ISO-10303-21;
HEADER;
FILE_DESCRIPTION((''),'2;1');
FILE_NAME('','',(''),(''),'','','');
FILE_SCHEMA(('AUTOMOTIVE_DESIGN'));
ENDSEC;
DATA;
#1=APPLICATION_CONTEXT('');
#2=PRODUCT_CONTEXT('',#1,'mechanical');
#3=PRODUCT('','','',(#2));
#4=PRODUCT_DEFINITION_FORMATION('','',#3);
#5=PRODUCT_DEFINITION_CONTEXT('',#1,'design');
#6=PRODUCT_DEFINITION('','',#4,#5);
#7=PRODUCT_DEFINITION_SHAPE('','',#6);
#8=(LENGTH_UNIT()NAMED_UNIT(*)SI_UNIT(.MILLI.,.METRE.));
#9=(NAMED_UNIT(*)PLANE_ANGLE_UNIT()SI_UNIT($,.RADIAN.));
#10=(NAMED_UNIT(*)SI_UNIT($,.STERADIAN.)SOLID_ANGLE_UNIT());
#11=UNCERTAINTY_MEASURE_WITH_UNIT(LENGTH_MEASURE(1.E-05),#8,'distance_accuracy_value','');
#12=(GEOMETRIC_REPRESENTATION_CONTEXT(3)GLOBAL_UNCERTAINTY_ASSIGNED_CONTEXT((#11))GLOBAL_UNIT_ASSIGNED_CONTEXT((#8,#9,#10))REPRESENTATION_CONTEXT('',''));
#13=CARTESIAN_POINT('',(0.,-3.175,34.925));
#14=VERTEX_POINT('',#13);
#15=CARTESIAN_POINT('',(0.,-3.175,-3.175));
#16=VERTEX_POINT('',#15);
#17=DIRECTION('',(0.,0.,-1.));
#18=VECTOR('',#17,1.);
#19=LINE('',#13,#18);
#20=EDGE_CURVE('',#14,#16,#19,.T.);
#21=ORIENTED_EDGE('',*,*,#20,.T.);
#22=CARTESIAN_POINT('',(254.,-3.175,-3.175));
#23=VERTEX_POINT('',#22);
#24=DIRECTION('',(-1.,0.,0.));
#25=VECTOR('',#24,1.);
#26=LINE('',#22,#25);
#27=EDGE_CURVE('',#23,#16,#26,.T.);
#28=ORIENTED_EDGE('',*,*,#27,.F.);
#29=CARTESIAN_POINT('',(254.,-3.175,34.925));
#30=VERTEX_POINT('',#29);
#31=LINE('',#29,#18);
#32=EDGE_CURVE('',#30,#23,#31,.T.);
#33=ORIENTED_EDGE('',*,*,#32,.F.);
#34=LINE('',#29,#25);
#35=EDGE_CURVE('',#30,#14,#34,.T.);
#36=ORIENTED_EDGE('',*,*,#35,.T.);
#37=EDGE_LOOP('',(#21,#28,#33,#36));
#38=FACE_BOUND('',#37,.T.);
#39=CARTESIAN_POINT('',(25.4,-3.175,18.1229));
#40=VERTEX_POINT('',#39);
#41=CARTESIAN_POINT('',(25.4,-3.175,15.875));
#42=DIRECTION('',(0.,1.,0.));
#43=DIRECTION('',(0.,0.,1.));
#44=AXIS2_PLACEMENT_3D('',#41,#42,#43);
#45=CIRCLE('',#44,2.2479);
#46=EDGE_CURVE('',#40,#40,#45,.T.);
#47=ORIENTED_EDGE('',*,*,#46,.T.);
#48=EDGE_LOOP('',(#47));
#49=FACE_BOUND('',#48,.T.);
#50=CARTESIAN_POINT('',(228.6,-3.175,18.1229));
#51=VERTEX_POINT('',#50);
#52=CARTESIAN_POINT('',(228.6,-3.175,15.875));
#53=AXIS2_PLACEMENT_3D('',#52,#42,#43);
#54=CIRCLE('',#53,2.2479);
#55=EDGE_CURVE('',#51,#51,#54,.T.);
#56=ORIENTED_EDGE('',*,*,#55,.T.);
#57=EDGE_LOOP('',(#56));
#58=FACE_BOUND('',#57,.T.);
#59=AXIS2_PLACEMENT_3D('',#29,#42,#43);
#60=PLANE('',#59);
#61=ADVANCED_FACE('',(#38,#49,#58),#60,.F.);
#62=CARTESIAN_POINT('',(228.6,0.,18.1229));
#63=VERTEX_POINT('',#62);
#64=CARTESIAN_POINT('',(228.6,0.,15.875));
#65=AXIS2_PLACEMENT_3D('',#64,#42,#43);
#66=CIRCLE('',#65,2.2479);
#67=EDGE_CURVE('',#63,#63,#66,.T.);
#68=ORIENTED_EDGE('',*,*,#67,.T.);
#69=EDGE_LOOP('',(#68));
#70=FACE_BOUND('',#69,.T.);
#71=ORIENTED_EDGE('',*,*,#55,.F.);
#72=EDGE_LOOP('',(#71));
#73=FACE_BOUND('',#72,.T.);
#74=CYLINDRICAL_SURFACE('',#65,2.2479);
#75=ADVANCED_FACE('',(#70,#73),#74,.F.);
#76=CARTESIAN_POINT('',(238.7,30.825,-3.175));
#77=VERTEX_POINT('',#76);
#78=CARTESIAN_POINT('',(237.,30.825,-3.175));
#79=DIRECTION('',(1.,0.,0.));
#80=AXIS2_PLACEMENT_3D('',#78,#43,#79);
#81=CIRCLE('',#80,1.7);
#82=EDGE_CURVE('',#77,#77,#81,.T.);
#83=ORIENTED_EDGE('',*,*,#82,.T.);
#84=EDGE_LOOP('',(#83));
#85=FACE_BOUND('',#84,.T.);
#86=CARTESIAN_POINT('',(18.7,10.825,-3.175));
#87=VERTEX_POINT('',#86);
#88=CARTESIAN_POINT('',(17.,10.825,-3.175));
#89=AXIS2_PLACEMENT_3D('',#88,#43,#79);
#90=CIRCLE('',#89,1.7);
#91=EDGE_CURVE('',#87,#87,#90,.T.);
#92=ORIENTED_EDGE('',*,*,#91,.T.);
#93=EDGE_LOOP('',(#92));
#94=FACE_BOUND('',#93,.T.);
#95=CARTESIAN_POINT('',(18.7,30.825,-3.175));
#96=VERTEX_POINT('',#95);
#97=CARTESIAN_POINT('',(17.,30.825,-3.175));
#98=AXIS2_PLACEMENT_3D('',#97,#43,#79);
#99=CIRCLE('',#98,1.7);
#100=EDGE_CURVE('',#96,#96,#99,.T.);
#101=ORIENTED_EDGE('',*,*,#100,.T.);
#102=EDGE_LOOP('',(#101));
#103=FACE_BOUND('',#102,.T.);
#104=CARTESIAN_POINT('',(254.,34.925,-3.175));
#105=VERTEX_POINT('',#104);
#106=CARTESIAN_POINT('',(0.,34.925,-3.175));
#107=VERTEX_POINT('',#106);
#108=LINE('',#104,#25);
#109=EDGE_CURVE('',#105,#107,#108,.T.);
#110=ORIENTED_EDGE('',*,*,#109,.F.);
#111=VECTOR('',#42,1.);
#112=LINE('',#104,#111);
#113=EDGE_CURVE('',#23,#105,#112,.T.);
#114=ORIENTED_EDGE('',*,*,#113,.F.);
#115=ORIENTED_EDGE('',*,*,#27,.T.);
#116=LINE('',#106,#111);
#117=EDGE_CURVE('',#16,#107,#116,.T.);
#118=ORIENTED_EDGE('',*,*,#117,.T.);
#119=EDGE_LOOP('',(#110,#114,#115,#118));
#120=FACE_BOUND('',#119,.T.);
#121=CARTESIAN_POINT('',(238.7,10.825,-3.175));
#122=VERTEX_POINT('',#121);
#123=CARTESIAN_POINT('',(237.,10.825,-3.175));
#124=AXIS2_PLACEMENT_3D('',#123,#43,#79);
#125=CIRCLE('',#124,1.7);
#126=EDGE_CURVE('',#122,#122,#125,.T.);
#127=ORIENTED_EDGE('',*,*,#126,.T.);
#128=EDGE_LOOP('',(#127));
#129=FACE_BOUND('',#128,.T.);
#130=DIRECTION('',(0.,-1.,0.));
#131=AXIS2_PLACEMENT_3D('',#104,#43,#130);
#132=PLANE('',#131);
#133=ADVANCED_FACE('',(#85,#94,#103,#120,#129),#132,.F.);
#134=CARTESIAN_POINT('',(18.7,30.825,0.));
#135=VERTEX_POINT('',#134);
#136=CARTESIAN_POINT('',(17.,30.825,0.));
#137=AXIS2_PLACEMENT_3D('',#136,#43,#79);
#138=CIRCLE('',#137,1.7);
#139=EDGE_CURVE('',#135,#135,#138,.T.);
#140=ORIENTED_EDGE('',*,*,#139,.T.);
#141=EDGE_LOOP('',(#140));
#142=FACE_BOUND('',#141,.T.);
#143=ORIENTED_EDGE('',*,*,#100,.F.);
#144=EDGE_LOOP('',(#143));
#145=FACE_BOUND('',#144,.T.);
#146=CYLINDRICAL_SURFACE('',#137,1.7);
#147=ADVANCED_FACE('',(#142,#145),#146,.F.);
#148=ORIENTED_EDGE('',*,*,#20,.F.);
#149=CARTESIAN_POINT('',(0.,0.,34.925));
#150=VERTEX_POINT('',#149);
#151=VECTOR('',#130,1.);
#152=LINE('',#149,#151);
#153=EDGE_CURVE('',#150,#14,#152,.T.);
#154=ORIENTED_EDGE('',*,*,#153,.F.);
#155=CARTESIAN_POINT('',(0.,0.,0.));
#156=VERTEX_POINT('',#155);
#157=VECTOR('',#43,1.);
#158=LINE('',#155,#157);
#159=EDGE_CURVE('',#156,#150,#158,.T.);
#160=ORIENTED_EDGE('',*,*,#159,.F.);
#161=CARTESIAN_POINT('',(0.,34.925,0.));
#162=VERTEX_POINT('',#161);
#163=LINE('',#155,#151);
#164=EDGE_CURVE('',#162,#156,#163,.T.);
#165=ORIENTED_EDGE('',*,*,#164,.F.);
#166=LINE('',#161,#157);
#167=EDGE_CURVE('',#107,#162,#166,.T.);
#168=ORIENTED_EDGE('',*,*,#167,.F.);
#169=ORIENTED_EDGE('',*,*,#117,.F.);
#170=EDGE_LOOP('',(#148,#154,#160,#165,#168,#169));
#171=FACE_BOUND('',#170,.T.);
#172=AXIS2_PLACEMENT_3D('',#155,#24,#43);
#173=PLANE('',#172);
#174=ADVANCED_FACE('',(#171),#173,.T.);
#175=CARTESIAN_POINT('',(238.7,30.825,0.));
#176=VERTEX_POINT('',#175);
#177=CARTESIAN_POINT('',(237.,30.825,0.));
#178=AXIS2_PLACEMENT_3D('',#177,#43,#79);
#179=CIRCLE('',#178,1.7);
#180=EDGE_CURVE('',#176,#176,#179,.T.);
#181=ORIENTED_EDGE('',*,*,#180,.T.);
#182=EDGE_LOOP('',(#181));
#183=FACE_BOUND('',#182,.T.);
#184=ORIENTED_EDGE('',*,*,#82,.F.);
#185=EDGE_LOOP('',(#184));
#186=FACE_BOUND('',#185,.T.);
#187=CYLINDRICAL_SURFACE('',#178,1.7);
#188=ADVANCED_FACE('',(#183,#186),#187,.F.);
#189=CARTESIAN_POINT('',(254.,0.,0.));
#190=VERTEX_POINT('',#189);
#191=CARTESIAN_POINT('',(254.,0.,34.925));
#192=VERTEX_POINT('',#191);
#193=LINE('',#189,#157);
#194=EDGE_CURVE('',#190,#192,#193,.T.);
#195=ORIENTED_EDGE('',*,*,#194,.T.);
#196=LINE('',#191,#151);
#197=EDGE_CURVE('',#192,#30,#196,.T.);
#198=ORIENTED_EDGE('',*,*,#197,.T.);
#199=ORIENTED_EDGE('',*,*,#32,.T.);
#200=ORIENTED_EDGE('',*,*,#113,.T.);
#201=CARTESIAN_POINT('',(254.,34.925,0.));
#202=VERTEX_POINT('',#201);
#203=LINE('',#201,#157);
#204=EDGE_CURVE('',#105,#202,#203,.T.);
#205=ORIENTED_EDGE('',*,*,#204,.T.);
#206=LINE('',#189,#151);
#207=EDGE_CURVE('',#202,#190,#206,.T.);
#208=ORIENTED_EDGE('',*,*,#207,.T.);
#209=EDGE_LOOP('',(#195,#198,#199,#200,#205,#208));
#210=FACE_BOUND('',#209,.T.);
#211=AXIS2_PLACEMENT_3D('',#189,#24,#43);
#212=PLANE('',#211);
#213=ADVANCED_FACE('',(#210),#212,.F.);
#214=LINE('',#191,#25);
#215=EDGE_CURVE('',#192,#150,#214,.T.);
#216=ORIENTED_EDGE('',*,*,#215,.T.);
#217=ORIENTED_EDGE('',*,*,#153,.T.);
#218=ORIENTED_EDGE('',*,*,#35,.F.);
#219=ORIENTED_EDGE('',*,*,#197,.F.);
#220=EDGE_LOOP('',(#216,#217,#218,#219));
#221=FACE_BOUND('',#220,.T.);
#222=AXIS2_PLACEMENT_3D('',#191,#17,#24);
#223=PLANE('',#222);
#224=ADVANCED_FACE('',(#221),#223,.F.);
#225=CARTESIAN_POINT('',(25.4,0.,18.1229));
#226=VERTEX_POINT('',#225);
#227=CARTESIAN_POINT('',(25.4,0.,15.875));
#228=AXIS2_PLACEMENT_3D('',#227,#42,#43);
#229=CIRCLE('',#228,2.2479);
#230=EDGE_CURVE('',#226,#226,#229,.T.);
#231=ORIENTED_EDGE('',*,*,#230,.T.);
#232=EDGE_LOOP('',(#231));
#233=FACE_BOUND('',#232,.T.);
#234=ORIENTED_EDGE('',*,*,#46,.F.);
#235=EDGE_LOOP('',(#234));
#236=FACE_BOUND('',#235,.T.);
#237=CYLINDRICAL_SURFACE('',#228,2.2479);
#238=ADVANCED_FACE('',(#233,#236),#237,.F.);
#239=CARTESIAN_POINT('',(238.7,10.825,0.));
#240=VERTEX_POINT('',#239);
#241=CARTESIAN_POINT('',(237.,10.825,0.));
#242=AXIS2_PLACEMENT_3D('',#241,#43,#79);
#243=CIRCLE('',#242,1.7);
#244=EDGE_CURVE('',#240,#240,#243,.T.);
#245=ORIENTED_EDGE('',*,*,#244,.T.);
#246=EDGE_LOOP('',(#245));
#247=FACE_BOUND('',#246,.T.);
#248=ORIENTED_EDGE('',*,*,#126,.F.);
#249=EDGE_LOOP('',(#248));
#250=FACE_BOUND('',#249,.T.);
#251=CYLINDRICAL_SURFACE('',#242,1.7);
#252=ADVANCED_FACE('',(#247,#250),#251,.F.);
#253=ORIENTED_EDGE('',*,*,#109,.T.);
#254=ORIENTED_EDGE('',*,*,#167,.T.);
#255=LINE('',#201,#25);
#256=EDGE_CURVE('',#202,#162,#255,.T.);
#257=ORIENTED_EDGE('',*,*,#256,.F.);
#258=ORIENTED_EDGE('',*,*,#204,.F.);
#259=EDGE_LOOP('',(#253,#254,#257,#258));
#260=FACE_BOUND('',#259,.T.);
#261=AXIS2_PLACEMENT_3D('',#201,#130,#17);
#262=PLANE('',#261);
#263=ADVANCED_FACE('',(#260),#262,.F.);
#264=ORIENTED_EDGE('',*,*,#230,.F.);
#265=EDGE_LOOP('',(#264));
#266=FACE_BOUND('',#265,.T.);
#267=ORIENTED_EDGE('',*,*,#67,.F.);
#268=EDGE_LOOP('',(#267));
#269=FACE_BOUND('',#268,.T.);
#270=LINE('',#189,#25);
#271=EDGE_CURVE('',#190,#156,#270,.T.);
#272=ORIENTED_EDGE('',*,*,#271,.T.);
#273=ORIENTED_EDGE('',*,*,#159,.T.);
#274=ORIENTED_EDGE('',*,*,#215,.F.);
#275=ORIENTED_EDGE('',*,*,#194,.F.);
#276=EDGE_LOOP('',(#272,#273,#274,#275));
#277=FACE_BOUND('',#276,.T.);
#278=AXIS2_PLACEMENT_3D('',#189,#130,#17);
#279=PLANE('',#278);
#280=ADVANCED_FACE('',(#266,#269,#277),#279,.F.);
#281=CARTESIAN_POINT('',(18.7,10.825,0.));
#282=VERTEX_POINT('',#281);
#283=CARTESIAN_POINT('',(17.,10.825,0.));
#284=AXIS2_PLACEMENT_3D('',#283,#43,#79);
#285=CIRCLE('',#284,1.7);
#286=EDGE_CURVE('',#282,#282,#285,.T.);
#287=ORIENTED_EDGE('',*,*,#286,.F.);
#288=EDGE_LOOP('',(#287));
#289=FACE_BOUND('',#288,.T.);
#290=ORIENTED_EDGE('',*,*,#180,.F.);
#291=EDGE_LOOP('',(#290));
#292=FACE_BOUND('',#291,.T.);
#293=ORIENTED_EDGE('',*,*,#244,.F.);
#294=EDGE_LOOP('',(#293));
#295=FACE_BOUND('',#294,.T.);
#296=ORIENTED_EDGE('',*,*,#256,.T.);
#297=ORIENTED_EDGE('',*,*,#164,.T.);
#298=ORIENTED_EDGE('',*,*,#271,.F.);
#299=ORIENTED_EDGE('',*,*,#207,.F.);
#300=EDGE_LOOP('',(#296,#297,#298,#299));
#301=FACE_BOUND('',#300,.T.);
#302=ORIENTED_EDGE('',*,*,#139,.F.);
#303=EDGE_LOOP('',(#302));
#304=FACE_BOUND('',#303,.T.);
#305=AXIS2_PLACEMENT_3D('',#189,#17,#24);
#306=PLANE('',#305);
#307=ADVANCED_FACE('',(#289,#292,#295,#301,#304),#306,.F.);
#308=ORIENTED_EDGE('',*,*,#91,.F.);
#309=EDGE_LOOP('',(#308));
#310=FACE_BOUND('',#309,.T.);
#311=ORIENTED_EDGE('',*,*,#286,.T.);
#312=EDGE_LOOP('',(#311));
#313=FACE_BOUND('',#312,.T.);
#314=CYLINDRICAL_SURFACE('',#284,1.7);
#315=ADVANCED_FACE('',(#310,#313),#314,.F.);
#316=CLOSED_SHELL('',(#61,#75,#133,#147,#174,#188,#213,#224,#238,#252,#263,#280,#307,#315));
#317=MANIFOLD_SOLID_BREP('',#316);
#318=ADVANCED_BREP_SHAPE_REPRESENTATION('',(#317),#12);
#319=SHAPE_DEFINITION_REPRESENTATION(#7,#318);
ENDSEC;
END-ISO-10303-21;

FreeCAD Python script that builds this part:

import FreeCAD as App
import Part
import Sketcher
Q = App.Units.Quantity


def add_polygon(sketch, points):
    """Adds a closed chain of lines whose ends are joined by coincident constraints."""
    first, n = sketch.GeometryCount, len(points)
    for a, b in zip(points, points[1:] + points[:1]):
        sketch.addGeometry(Part.LineSegment(App.Vector(*a, 0), App.Vector(*b, 0)), False)
    for i in range(n):
        sketch.addConstraint(Sketcher.Constraint("Coincident", first + i, 2, first + (i + 1) % n, 1))

doc = App.newDocument("Part")
params = doc.addObject("Spreadsheet::Sheet", "Params")
for row, (alias, value) in enumerate([
    ("sketch1_width", "1.5 in"),
    ("sketch1_width2", "0.125 in"),
    ("pad1_length", "10 in"),
    ("hole_diameter", "3.4 mm"),
    ("sketch3_diameter", "0.177 in"),
    ("hole2_diameter", "0.177 in"),
], start=1):
    params.set(f"A{row}", alias)
    params.set(f"B{row}", "=" + value)
    params.setAlias(f"B{row}", alias)

body = doc.addObject("PartDesign::Body", "Body")

sketch1 = body.newObject("Sketcher::SketchObject", "Sketch")
sketch1.AttachmentSupport = (doc.getObject("YZ_Plane"), [""])
sketch1.MapMode = "FlatFace"
add_polygon(sketch1, [(0, 0), (0, 34.925), (-3.175, 34.925), (-3.175, -3.175), (34.925, -3.175), (34.925, 0)])
sketch1.addConstraint([
    Sketcher.Constraint("Vertical", 0),
    Sketcher.Constraint("Horizontal", 1),
    Sketcher.Constraint("Vertical", 2),
    Sketcher.Constraint("Horizontal", 3),
    Sketcher.Constraint("Vertical", 4),
    Sketcher.Constraint("Horizontal", 5),
    Sketcher.Constraint("Coincident", 5, 2, -1, 1),
    Sketcher.Constraint("Equal", 5, 0),
    Sketcher.Constraint("Equal", 3, 2),
    Sketcher.Constraint("DistanceX", 3, 1, 3, 2, Q("1.5 in")),
    Sketcher.Constraint("DistanceX", 1, 2, 1, 1, Q("0.125 in")),
])
sketch1.setExpression("Constraints[15]", "Params.sketch1_width")
sketch1.setExpression("Constraints[16]", "Params.sketch1_width2")
pad1 = body.newObject("PartDesign::Pad", "Pad")
pad1.Profile = sketch1
pad1.setExpression("Length", "Params.pad1_length")

sketch2 = body.newObject("Sketcher::SketchObject", "Sketch001")
sketch2.AttachmentSupport = (doc.getObject("XY_Plane"), [""])
sketch2.MapMode = "FlatFace"
sketch2.addGeometry([
    Part.Circle(App.Vector(17, 30.825, 0), App.Vector(0, 0, 1), 1.7),
    Part.Circle(App.Vector(17, 10.825, 0), App.Vector(0, 0, 1), 1.7),
    Part.Circle(App.Vector(237, 10.825, 0), App.Vector(0, 0, 1), 1.7),
    Part.Circle(App.Vector(237, 30.825, 0), App.Vector(0, 0, 1), 1.7),
], False)
sketch2.addConstraint([
    Sketcher.Constraint("Equal", 0, 1),
    Sketcher.Constraint("Equal", 1, 2),
    Sketcher.Constraint("Equal", 2, 3),
    Sketcher.Constraint("Horizontal", 1, 3, 2, 3),
    Sketcher.Constraint("Horizontal", 0, 3, 3, 3),
    Sketcher.Constraint("Vertical", 0, 3, 1, 3),
    Sketcher.Constraint("Vertical", 2, 3, 3, 3),
    Sketcher.Constraint("Diameter", 0, 3.4),
    Sketcher.Constraint("DistanceX", -1, 1, 0, 3, 17.0),
    Sketcher.Constraint("DistanceY", -1, 1, 0, 3, 30.825),
    Sketcher.Constraint("DistanceY", -1, 1, 1, 3, 10.825),
    Sketcher.Constraint("DistanceX", -1, 1, 2, 3, 237.0),
])
doc.recompute()
hole = body.newObject("PartDesign::Hole", "Hole")
hole.Profile = sketch2
hole.ThreadType = "None"
hole.setExpression("Diameter", "Params.hole_diameter")
hole.DepthType = "ThroughAll"

sketch3 = body.newObject("Sketcher::SketchObject", "Sketch002")
sketch3.AttachmentSupport = (doc.getObject("XZ_Plane"), [""])
sketch3.MapMode = "FlatFace"
sketch3.addGeometry([
    Part.Circle(App.Vector(25.4, 15.875, 0), App.Vector(0, 0, 1), 2.2479),
    Part.Circle(App.Vector(228.6, 15.875, 0), App.Vector(0, 0, 1), 2.2479),
], False)
sketch3.addConstraint([
    Sketcher.Constraint("Equal", 0, 1),
    Sketcher.Constraint("Horizontal", 0, 3, 1, 3),
    Sketcher.Constraint("Diameter", 0, Q("0.177 in")),
    Sketcher.Constraint("DistanceX", -1, 1, 0, 3, Q("1 in")),
    Sketcher.Constraint("DistanceX", -1, 1, 1, 3, Q("9 in")),
    Sketcher.Constraint("DistanceY", -1, 1, 0, 3, Q("0.625 in")),
])
sketch3.setExpression("Constraints[2]", "Params.sketch3_diameter")
doc.recompute()
hole2 = body.newObject("PartDesign::Hole", "Hole001")
hole2.Profile = sketch3
hole2.ThreadType = "None"
hole2.setExpression("Diameter", "Params.hole2_diameter")
hole2.DepthType = "ThroughAll"
hole2.Reversed = True

doc.recompute()
